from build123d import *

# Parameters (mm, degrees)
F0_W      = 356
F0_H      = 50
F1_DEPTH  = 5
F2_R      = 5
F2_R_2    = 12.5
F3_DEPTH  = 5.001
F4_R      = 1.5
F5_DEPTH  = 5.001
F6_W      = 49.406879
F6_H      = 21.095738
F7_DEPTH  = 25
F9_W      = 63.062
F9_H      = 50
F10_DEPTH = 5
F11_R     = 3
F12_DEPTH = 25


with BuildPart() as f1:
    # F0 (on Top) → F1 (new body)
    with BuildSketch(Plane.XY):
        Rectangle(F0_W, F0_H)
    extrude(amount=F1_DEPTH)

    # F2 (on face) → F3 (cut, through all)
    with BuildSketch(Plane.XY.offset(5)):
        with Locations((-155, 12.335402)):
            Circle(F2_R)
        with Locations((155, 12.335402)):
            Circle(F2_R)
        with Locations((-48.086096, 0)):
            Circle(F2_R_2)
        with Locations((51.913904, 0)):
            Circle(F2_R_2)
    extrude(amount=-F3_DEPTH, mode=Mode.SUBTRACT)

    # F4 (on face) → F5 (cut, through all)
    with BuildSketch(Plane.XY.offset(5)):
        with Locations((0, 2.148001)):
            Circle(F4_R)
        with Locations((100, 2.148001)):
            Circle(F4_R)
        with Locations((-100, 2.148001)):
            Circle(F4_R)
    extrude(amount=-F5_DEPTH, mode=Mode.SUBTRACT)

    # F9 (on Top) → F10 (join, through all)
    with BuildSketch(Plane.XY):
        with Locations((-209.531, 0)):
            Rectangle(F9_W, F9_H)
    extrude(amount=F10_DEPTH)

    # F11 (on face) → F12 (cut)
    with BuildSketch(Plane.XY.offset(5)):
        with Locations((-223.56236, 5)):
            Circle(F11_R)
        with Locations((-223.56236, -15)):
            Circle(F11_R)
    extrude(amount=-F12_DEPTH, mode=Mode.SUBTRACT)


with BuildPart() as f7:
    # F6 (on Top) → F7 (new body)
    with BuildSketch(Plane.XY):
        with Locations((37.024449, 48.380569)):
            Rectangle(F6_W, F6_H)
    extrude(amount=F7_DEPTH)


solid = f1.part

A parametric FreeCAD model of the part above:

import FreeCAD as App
import Part
import Sketcher

V = App.Vector


def add_polygon(sketch, points):
    """Adds a closed chain of lines whose ends are joined by coincident constraints."""
    first, n = sketch.GeometryCount, len(points)
    for a, b in zip(points, points[1:] + points[:1]):
        sketch.addGeometry(Part.LineSegment(App.Vector(*a, 0), App.Vector(*b, 0)), False)
    for i in range(n):
        sketch.addConstraint(Sketcher.Constraint("Coincident", first + i, 2, first + (i + 1) % n, 1))

doc = App.newDocument("Part")
body = doc.addObject("PartDesign::Body", "Body")

# Sketch on XY plane
sketch1 = doc.addObject("Sketcher::SketchObject", "Sketch")
body.addObject(sketch1)
sketch1.AttachmentSupport = (doc.XY_Plane, [""])
sketch1.MapMode = "FlatFace"
add_polygon(sketch1, [(-178, 25), (-178, -25), (178, -25), (178, 25)])  # lines 0-3
sketch1.addConstraint(Sketcher.Constraint("Vertical", 0))
sketch1.addConstraint(Sketcher.Constraint("Horizontal", 1))
sketch1.addConstraint(Sketcher.Constraint("Vertical", 2))
sketch1.addConstraint(Sketcher.Constraint("Horizontal", 3))
sketch1.addConstraint(Sketcher.Constraint("Symmetric", 0, 2, 2, 2, -1, 1))
sketch1.addConstraint(Sketcher.Constraint("DistanceX", 1, 1, 1, 2, 356.0))
sketch1.addConstraint(Sketcher.Constraint("DistanceY", 0, 2, 0, 1, 50.0))
pad1 = doc.addObject("PartDesign::Pad", "Pad")
body.addObject(pad1)
pad1.Profile = sketch1
pad1.Length = 5

# Sketch on XY plane
sketch2 = doc.addObject("Sketcher::SketchObject", "Sketch001")
body.addObject(sketch2)
sketch2.AttachmentSupport = (doc.XY_Plane, [""])
sketch2.MapMode = "FlatFace"
sketch2.AttachmentOffset = App.Placement(V(0, 0, 5), App.Rotation())
sketch2.addGeometry(Part.Circle(V(-155, 12.335402, 0), V(0, 0, 1), 5), False)
sketch2.addGeometry(Part.Circle(V(155, 12.335402, 0), V(0, 0, 1), 5), False)
sketch2.addGeometry(Part.Circle(V(-48.086096, 0, 0), V(0, 0, 1), 12.5), False)
sketch2.addGeometry(Part.Circle(V(51.913904, 0, 0), V(0, 0, 1), 12.5), False)
sketch2.addConstraint(Sketcher.Constraint("Equal", 0, 1))
sketch2.addConstraint(Sketcher.Constraint("Equal", 2, 3))
sketch2.addConstraint(Sketcher.Constraint("Symmetric", 0, 3, 1, 3, -2))
sketch2.addConstraint(Sketcher.Constraint("PointOnObject", 2, 3, -1))
sketch2.addConstraint(Sketcher.Constraint("PointOnObject", 3, 3, -1))
sketch2.addConstraint(Sketcher.Constraint("Diameter", 0, 10.0))
sketch2.addConstraint(Sketcher.Constraint("Diameter", 2, 25.0))
sketch2.addConstraint(Sketcher.Constraint("DistanceX", 0, 3, -1, 1, 155.0))
sketch2.addConstraint(Sketcher.Constraint("DistanceX", 2, 3, 3, 3, 100.0))
sketch2.addConstraint(Sketcher.Constraint("DistanceY", -1, 1, 0, 3, 12.335402))
sketch2.addConstraint(Sketcher.Constraint("DistanceX", 2, 3, -1, 1, 48.086096))
pocket1 = doc.addObject("PartDesign::Pocket", "Pocket")
body.addObject(pocket1)
pocket1.Profile = sketch2
pocket1.Type = "ThroughAll"

# Sketch on XY plane
sketch3 = doc.addObject("Sketcher::SketchObject", "Sketch002")
body.addObject(sketch3)
sketch3.AttachmentSupport = (doc.XY_Plane, [""])
sketch3.MapMode = "FlatFace"
sketch3.AttachmentOffset = App.Placement(V(0, 0, 5), App.Rotation())
sketch3.addGeometry(Part.Circle(V(0, 2.148001, 0), V(0, 0, 1), 1.5), False)
sketch3.addGeometry(Part.Circle(V(100, 2.148001, 0), V(0, 0, 1), 1.5), False)
sketch3.addGeometry(Part.Circle(V(-100, 2.148001, 0), V(0, 0, 1), 1.5), False)
sketch3.addConstraint(Sketcher.Constraint("Equal", 0, 1))
sketch3.addConstraint(Sketcher.Constraint("Equal", 1, 2))
sketch3.addConstraint(Sketcher.Constraint("Symmetric", 1, 3, 2, 3, -2))
sketch3.addConstraint(Sketcher.Constraint("PointOnObject", 0, 3, -2))
sketch3.addConstraint(Sketcher.Constraint("Horizontal", 0, 3, 1, 3))
sketch3.addConstraint(Sketcher.Constraint("Diameter", 0, 3.0))
sketch3.addConstraint(Sketcher.Constraint("DistanceX", -1, 1, 1, 3, 100.0))
sketch3.addConstraint(Sketcher.Constraint("DistanceY", -1, 1, 0, 3, 2.148001))
pocket2 = doc.addObject("PartDesign::Pocket", "Pocket001")
body.addObject(pocket2)
pocket2.Profile = sketch3
pocket2.Type = "ThroughAll"

# Sketch on XY plane
sketch4 = doc.addObject("Sketcher::SketchObject", "Sketch003")
body.addObject(sketch4)
sketch4.AttachmentSupport = (doc.XY_Plane, [""])
sketch4.MapMode = "FlatFace"
add_polygon(sketch4, [(-241.062, 25), (-241.062, -25), (-178, -25), (-178, 25)])  # lines 0-3
sketch4.addConstraint(Sketcher.Constraint("Vertical", 0))
sketch4.addConstraint(Sketcher.Constraint("Horizontal", 1))
sketch4.addConstraint(Sketcher.Constraint("Vertical", 2))
sketch4.addConstraint(Sketcher.Constraint("Horizontal", 3))
sketch4.addConstraint(Sketcher.Constraint("DistanceY", 0, 2, 0, 1, 50.0))
sketch4.addConstraint(Sketcher.Constraint("DistanceY", 0, 2, -1, 1, 25.0))
sketch4.addConstraint(Sketcher.Constraint("DistanceX", 1, 2, -1, 1, 178.0))
sketch4.addConstraint(Sketcher.Constraint("DistanceX", 1, 1, 1, 2, 63.062))
pad2 = doc.addObject("PartDesign::Pad", "Pad001")
body.addObject(pad2)
pad2.Profile = sketch4
pad2.Length = 5

# Sketch on XY plane
sketch5 = doc.addObject("Sketcher::SketchObject", "Sketch004")
body.addObject(sketch5)
sketch5.AttachmentSupport = (doc.XY_Plane, [""])
sketch5.MapMode = "FlatFace"
sketch5.AttachmentOffset = App.Placement(V(0, 0, 5), App.Rotation())
sketch5.addGeometry(Part.Circle(V(-223.56236, 5, 0), V(0, 0, 1), 3), False)
sketch5.addGeometry(Part.Circle(V(-223.56236, -15, 0), V(0, 0, 1), 3), False)
sketch5.addConstraint(Sketcher.Constraint("Equal", 0, 1))
sketch5.addConstraint(Sketcher.Constraint("Vertical", 0, 3, 1, 3))
sketch5.addConstraint(Sketcher.Constraint("Diameter", 0, 6.0))
sketch5.addConstraint(Sketcher.Constraint("DistanceY", -1, 1, 0, 3, 5.0))
sketch5.addConstraint(Sketcher.Constraint("DistanceY", 1, 3, -1, 1, 15.0))
sketch5.addConstraint(Sketcher.Constraint("DistanceX", 0, 3, -1, 1, 223.56236))
pocket3 = doc.addObject("PartDesign::Pocket", "Pocket002")
body.addObject(pocket3)
pocket3.Profile = sketch5
pocket3.Length = 25
body2 = doc.addObject("PartDesign::Body", "Body001")

# Sketch on XY plane
sketch6 = doc.addObject("Sketcher::SketchObject", "Sketch005")
body2.addObject(sketch6)
sketch6.AttachmentSupport = (doc.getObject("XY_Plane001"), [""])
sketch6.MapMode = "FlatFace"
add_polygon(sketch6, [(12.32101, 58.928438), (12.32101, 37.8327), (61.727888, 37.8327), (61.727888, 58.928438)])  # lines 0-3
sketch6.addConstraint(Sketcher.Constraint("Vertical", 0))
sketch6.addConstraint(Sketcher.Constraint("Horizontal", 1))
sketch6.addConstraint(Sketcher.Constraint("Vertical", 2))
sketch6.addConstraint(Sketcher.Constraint("Horizontal", 3))
sketch6.addConstraint(Sketcher.Constraint("DistanceX", 1, 1, 1, 2, 49.406879))
sketch6.addConstraint(Sketcher.Constraint("DistanceY", -1, 1, 0, 2, 37.8327))
sketch6.addConstraint(Sketcher.Constraint("DistanceY", 0, 2, 0, 1, 21.095738))
sketch6.addConstraint(Sketcher.Constraint("DistanceX", -1, 1, 0, 2, 12.32101))
pad3 = doc.addObject("PartDesign::Pad", "Pad002")
body2.addObject(pad3)
pad3.Profile = sketch6
pad3.Length = 25
body2.Visibility = False

doc.recompute()
